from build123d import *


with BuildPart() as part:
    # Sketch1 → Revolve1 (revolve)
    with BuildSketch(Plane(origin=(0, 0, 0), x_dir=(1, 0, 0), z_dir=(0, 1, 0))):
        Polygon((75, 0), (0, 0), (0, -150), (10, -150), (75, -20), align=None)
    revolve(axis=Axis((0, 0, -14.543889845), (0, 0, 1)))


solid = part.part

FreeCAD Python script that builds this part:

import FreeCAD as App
import Part
import Sketcher
Q = App.Units.Quantity

doc = App.newDocument("Part")
body = doc.addObject("PartDesign::Body", "Body")

sketch1 = doc.addObject("Sketcher::SketchObject", "Sketch")
body.addObject(sketch1)
sketch1.AttachmentSupport = (doc.XZ_Plane, [""])
sketch1.MapMode = "FlatFace"
sketch1.addGeometry([
    Part.LineSegment(App.Vector(75, 0, 0), App.Vector(0, 0, 0)),
    Part.LineSegment(App.Vector(0, 0, 0), App.Vector(0, 150, 0)),
    Part.LineSegment(App.Vector(0, 150, 0), App.Vector(10, 150, 0)),
    Part.LineSegment(App.Vector(10, 150, 0), App.Vector(75, 20, 0)),
    Part.LineSegment(App.Vector(75, 20, 0), App.Vector(75, 0, 0)),
], False)
sketch1.addConstraint([
    Sketcher.Constraint("Coincident", 0, 2, 1, 1),
    Sketcher.Constraint("Coincident", 1, 2, 2, 1),
    Sketcher.Constraint("Coincident", 2, 2, 3, 1),
    Sketcher.Constraint("Coincident", 3, 2, 4, 1),
    Sketcher.Constraint("Coincident", 4, 2, 0, 1),
    Sketcher.Constraint("Horizontal", 0),
    Sketcher.Constraint("Vertical", 1),
    Sketcher.Constraint("Horizontal", 2),
    Sketcher.Constraint("Vertical", 4),
    Sketcher.Constraint("Coincident", 0, 2, -1, 1),
    Sketcher.Constraint("DistanceX", 0, 2, 0, 1, Q("75 mm")),
    Sketcher.Constraint("DistanceX", 2, 1, 2, 2, Q("10 mm")),
    Sketcher.Constraint("DistanceY", 1, 1, 1, 2, Q("150 mm")),
    Sketcher.Constraint("DistanceY", 4, 2, 4, 1, Q("20 mm")),
])
revolution = doc.addObject("PartDesign::Revolution", "Revolution")
body.addObject(revolution)
revolution.Profile = sketch1
revolution.ReferenceAxis = (sketch1, ["V_Axis"])
revolution.Angle = 360

doc.recompute()
